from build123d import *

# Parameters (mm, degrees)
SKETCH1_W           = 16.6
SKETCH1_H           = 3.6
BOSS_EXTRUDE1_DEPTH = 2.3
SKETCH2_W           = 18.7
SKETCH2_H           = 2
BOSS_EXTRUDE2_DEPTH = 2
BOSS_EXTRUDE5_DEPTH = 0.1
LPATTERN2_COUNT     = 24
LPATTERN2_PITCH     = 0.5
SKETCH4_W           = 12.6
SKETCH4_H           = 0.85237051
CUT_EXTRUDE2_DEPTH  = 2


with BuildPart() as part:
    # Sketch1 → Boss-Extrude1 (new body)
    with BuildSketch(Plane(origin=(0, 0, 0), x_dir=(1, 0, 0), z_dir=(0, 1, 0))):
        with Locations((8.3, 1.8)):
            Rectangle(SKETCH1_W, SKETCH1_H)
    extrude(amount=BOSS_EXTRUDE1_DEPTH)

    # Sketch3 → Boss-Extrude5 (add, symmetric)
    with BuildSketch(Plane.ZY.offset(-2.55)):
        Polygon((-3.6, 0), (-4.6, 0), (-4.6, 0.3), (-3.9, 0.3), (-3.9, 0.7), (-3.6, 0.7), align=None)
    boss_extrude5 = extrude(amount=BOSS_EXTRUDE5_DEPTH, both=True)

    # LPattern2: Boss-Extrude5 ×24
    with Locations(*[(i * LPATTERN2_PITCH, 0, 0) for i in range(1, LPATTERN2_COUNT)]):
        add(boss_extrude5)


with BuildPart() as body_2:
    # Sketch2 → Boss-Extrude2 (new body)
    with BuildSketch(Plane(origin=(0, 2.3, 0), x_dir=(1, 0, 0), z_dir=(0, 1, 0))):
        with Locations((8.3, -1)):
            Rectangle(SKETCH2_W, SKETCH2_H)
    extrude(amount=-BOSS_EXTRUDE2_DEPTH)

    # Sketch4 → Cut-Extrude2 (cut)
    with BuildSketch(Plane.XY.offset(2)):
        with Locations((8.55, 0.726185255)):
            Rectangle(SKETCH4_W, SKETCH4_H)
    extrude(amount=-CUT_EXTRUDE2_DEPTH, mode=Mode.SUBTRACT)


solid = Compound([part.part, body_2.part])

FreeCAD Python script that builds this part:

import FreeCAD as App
import Part
import Sketcher

V = App.Vector
Q = App.Units.Quantity


def add_polygon(sketch, points):
    """Adds a closed chain of lines whose ends are joined by coincident constraints."""
    first, n = sketch.GeometryCount, len(points)
    for a, b in zip(points, points[1:] + points[:1]):
        sketch.addGeometry(Part.LineSegment(App.Vector(*a, 0), App.Vector(*b, 0)), False)
    for i in range(n):
        sketch.addConstraint(Sketcher.Constraint("Coincident", first + i, 2, first + (i + 1) % n, 1))

doc = App.newDocument("Part")
body = doc.addObject("PartDesign::Body", "Body")

sketch1 = doc.addObject("Sketcher::SketchObject", "Sketch")
body.addObject(sketch1)
sketch1.AttachmentSupport = (doc.XZ_Plane, [""])
sketch1.MapMode = "FlatFace"
add_polygon(sketch1, [(0, -3.6), (0, 0), (16.6, 0), (16.6, -3.6)])
sketch1.addConstraint([
    Sketcher.Constraint("Vertical", 0),
    Sketcher.Constraint("Horizontal", 1),
    Sketcher.Constraint("Vertical", 2),
    Sketcher.Constraint("Horizontal", 3),
    Sketcher.Constraint("Coincident", 0, 2, -1, 1),
    Sketcher.Constraint("DistanceX", 1, 1, 1, 2, Q("16.6 mm")),
    Sketcher.Constraint("DistanceY", 0, 1, 0, 2, Q("3.6 mm")),
])
pad1 = doc.addObject("PartDesign::Pad", "Pad")
body.addObject(pad1)
pad1.Profile = sketch1
pad1.Length = 2.3
pad1.Reversed = True

sketch2 = doc.addObject("Sketcher::SketchObject", "Sketch001")
body.addObject(sketch2)
sketch2.AttachmentSupport = (doc.YZ_Plane, [""])
sketch2.MapMode = "FlatFace"
sketch2.AttachmentOffset = App.Placement(V(0, 0, 2.55), App.Rotation())
add_polygon(sketch2, [(0, -4.6), (0, -3.6), (0.7, -3.6), (0.7, -3.9), (0.3, -3.9), (0.3, -4.6)])
sketch2.addConstraint([
    Sketcher.Constraint("Vertical", 0),
    Sketcher.Constraint("Horizontal", 1),
    Sketcher.Constraint("Vertical", 2),
    Sketcher.Constraint("Horizontal", 3),
    Sketcher.Constraint("Vertical", 4),
    Sketcher.Constraint("Horizontal", 5),
    Sketcher.Constraint("PointOnObject", 0, 2, -2),
    Sketcher.Constraint("Equal", 5, 2),
    Sketcher.Constraint("Equal", 1, 4),
    Sketcher.Constraint("DistanceY", 0, 1, 0, 2, Q("1 mm")),
    Sketcher.Constraint("DistanceX", 1, 1, 1, 2, Q("0.7 mm")),
    Sketcher.Constraint("DistanceY", 0, 2, -1, 1, Q("3.6 mm")),
])
pad2 = doc.addObject("PartDesign::Pad", "Pad001")
body.addObject(pad2)
pad2.Profile = sketch2
pad2.Length = 0.2
pad2.Midplane = True
doc.recompute()

linearpattern = doc.addObject("PartDesign::LinearPattern", "LinearPattern")
body.addObject(linearpattern)
linearpattern.Originals = [pad2]
linearpattern.Direction = (doc.X_Axis, [""])
linearpattern.Mode = "offset"
linearpattern.Offset = 0.5
linearpattern.Occurrences = 24
body.Tip = linearpattern
body2 = doc.addObject("PartDesign::Body", "Body001")

sketch3 = doc.addObject("Sketcher::SketchObject", "Sketch002")
body2.addObject(sketch3)
sketch3.AttachmentSupport = (doc.getObject("XZ_Plane001"), [""])
sketch3.MapMode = "FlatFace"
sketch3.AttachmentOffset = App.Placement(V(0, 0, -2.3), App.Rotation())
add_polygon(sketch3, [(-1.05, 0), (-1.05, 2), (17.65, 2), (17.65, 0)])
sketch3.addConstraint([
    Sketcher.Constraint("Vertical", 0),
    Sketcher.Constraint("Horizontal", 1),
    Sketcher.Constraint("Vertical", 2),
    Sketcher.Constraint("Horizontal", 3),
    Sketcher.Constraint("PointOnObject", 2, 2, -1),
    Sketcher.Constraint("DistanceY", 0, 1, 0, 2, Q("2 mm")),
    Sketcher.Constraint("DistanceX", 1, 1, 1, 2, Q("18.7 mm")),
    Sketcher.Constraint("DistanceX", 0, 2, -1, 1, Q("1.05 mm")),
])
pad3 = doc.addObject("PartDesign::Pad", "Pad002")
body2.addObject(pad3)
pad3.Profile = sketch3
pad3.Length = 2

sketch4 = doc.addObject("Sketcher::SketchObject", "Sketch003")
body2.addObject(sketch4)
sketch4.AttachmentSupport = (doc.getObject("XY_Plane001"), [""])
sketch4.MapMode = "FlatFace"
sketch4.AttachmentOffset = App.Placement(V(0, 0, 2), App.Rotation())
add_polygon(sketch4, [(2.25, 1.152371), (2.25, 0.3), (14.85, 0.3), (14.85, 1.152371)])
sketch4.addConstraint([
    Sketcher.Constraint("Vertical", 0),
    Sketcher.Constraint("Horizontal", 1),
    Sketcher.Constraint("Vertical", 2),
    Sketcher.Constraint("Horizontal", 3),
    Sketcher.Constraint("DistanceX", 1, 1, 1, 2, Q("12.6 mm")),
    Sketcher.Constraint("DistanceY", -1, 1, 0, 2, Q("0.3 mm")),
    Sketcher.Constraint("DistanceX", -1, 1, 0, 2, Q("2.25 mm")),
    Sketcher.Constraint("DistanceY", 0, 2, 0, 1, Q("0.852371 mm")),
])
pocket1 = doc.addObject("PartDesign::Pocket", "Pocket")
body2.addObject(pocket1)
pocket1.Profile = sketch4
pocket1.Length = 2

doc.recompute()
